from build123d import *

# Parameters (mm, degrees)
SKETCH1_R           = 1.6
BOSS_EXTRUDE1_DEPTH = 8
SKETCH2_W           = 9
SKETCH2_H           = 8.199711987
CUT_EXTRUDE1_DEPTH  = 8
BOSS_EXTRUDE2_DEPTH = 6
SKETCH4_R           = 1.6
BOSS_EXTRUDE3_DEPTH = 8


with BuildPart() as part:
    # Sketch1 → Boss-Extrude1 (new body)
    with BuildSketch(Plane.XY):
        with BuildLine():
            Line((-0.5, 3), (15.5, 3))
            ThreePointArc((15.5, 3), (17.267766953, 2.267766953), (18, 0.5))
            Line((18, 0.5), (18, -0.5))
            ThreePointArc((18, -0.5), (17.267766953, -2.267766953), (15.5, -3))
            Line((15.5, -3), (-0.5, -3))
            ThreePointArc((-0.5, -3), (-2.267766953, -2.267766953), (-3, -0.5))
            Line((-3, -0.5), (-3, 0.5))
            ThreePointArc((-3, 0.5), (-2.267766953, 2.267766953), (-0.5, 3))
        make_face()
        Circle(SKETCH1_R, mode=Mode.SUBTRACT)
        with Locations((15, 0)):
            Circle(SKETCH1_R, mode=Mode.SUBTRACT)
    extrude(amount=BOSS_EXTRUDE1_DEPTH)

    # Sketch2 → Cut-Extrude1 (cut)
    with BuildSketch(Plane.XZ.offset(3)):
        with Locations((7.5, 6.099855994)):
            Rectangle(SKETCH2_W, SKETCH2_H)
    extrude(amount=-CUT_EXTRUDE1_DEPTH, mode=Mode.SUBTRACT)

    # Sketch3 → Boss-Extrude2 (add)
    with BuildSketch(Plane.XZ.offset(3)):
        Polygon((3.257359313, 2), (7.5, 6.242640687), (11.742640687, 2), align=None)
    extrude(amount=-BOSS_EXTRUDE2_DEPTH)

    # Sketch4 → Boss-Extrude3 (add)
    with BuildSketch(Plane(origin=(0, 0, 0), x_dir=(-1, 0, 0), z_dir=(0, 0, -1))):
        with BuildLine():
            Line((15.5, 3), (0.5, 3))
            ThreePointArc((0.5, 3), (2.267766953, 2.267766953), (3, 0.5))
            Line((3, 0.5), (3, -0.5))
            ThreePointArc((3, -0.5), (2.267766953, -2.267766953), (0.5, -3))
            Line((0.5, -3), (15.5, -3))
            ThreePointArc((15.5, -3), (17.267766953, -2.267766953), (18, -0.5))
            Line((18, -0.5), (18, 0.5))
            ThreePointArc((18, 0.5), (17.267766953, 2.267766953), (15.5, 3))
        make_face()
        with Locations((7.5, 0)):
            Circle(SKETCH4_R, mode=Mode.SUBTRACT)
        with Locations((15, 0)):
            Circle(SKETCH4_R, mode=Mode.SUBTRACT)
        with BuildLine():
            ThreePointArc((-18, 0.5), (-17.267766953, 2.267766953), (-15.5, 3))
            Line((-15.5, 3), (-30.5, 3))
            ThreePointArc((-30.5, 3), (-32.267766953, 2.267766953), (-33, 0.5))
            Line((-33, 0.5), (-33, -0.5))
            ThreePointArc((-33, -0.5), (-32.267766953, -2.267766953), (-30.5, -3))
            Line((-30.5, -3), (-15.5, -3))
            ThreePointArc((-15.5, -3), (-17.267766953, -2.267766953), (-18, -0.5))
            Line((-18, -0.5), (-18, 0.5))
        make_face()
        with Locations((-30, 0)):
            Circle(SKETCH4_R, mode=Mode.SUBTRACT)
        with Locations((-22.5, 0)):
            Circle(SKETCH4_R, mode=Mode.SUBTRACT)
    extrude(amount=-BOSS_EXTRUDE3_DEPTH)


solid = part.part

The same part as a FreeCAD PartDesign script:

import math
import FreeCAD as App
import Part
import Sketcher

V = App.Vector

doc = App.newDocument("Part")
body = doc.addObject("PartDesign::Body", "Body")

sketch1 = body.newObject("Sketcher::SketchObject", "Sketch")
sketch1.AttachmentSupport = (doc.getObject("XY_Plane"), [""])
sketch1.MapMode = "FlatFace"
sketch1.addGeometry([
    Part.LineSegment(V(15.5, 3, 0), V(-0.5, 3, 0)),
    Part.ArcOfCircle(Part.Circle(V(-0.5, 0.5, 0), V(0, 0, 1), 2.5), math.radians(90), math.radians(180)),
    Part.LineSegment(V(-3, 0.5, 0), V(-3, -0.5, 0)),
    Part.ArcOfCircle(Part.Circle(V(-0.5, -0.5, 0), V(0, 0, 1), 2.5), math.radians(180), math.radians(270)),
    Part.LineSegment(V(-0.5, -3, 0), V(15.5, -3, 0)),
    Part.ArcOfCircle(Part.Circle(V(15.5, -0.5, 0), V(0, 0, 1), 2.5), math.radians(-90), math.radians(0)),
    Part.LineSegment(V(18, -0.5, 0), V(18, 0.5, 0)),
    Part.ArcOfCircle(Part.Circle(V(15.5, 0.5, 0), V(0, 0, 1), 2.5), math.radians(0), math.radians(90)),
    Part.Circle(V(15, 0, 0), V(0, 0, 1), 1.6),
    Part.Circle(V(0, 0, 0), V(0, 0, 1), 1.6),
], False)
sketch1.addConstraint([
    Sketcher.Constraint("Tangent", 0, 2, 1, 1),
    Sketcher.Constraint("Tangent", 1, 2, 2, 1),
    Sketcher.Constraint("Tangent", 2, 2, 3, 1),
    Sketcher.Constraint("Tangent", 3, 2, 4, 1),
    Sketcher.Constraint("Tangent", 4, 2, 5, 1),
    Sketcher.Constraint("Tangent", 5, 2, 6, 1),
    Sketcher.Constraint("Tangent", 6, 2, 7, 1),
    Sketcher.Constraint("Tangent", 7, 2, 0, 1),
    Sketcher.Constraint("Horizontal", 0),
    Sketcher.Constraint("Vertical", 2),
    Sketcher.Constraint("Horizontal", 4),
    Sketcher.Constraint("Vertical", 6),
    Sketcher.Constraint("Coincident", 9, 3, -1, 1),
    Sketcher.Constraint("Equal", 1, 3),
    Sketcher.Constraint("Equal", 3, 5),
    Sketcher.Constraint("Equal", 5, 7),
    Sketcher.Constraint("Equal", 8, 9),
    Sketcher.Constraint("PointOnObject", 8, 3, -1),
    Sketcher.Constraint("Diameter", 8, 3.2),
    Sketcher.Constraint("Radius", 1, 2.5),
    Sketcher.Constraint("DistanceX", 0, 2, 0, 1, 16.0),
    Sketcher.Constraint("DistanceY", 2, 2, 2, 1, 1.0),
    Sketcher.Constraint("DistanceX", -1, 1, 8, 3, 15.0),
    Sketcher.Constraint("DistanceY", -1, 1, 0, 2, 3.0),
    Sketcher.Constraint("DistanceX", 1, 2, -1, 1, 3.0),
])
pad1 = body.newObject("PartDesign::Pad", "Pad")
pad1.Profile = sketch1
pad1.Length = 8

sketch2 = body.newObject("Sketcher::SketchObject", "Sketch001")
sketch2.AttachmentSupport = (doc.getObject("XZ_Plane"), [""])
sketch2.MapMode = "FlatFace"
sketch2.AttachmentOffset = App.Placement(V(0, 0, 3), App.Rotation())
sketch2.addGeometry([
    Part.LineSegment(V(3, 10, 0), V(3, 2, 0)),
    Part.LineSegment(V(3, 2, 0), V(12, 2, 0)),
    Part.LineSegment(V(12, 2, 0), V(12, 10, 0)),
    Part.LineSegment(V(12, 10, 0), V(3, 10, 0)),
], False)
sketch2.addConstraint([
    Sketcher.Constraint("Coincident", 0, 2, 1, 1),
    Sketcher.Constraint("Coincident", 1, 2, 2, 1),
    Sketcher.Constraint("Coincident", 2, 2, 3, 1),
    Sketcher.Constraint("Coincident", 3, 2, 0, 1),
    Sketcher.Constraint("Vertical", 0),
    Sketcher.Constraint("Horizontal", 1),
    Sketcher.Constraint("Vertical", 2),
    Sketcher.Constraint("Horizontal", 3),
    Sketcher.Constraint("DistanceX", 1, 1, 1, 2, 9.0),
    Sketcher.Constraint("DistanceX", -1, 1, 0, 2, 3.0),
    Sketcher.Constraint("DistanceY", -1, 1, 0, 2, 2.0),
    Sketcher.Constraint("DistanceY", 0, 2, 0, 1, 8.199712),
])
pocket1 = body.newObject("PartDesign::Pocket", "Pocket")
pocket1.Profile = sketch2
pocket1.Length = 8

sketch3 = body.newObject("Sketcher::SketchObject", "Sketch002")
sketch3.AttachmentSupport = (doc.getObject("XZ_Plane"), [""])
sketch3.MapMode = "FlatFace"
sketch3.AttachmentOffset = App.Placement(V(0, 0, 3), App.Rotation())
sketch3.addGeometry([
    Part.LineSegment(V(8, 6, 0), V(3, 2, 0)),
    Part.LineSegment(V(3, 2, 0), V(12, 2, 0)),
    Part.LineSegment(V(12, 2, 0), V(8, 6, 0)),
], False)
sketch3.addConstraint([
    Sketcher.Constraint("Coincident", 0, 2, 1, 1),
    Sketcher.Constraint("Coincident", 1, 2, 2, 1),
    Sketcher.Constraint("Coincident", 2, 2, 0, 1),
    Sketcher.Constraint("Horizontal", 1),
    Sketcher.Constraint("Perpendicular", 0, 2),
    Sketcher.Constraint("Equal", 0, 2),
    Sketcher.Constraint("Distance", 0, 6.0),
    Sketcher.Constraint("DistanceY", -1, 1, 0, 2, 2.0),
    Sketcher.Constraint("DistanceX", -1, 1, 2, 2, 7.5),
])
pad2 = body.newObject("PartDesign::Pad", "Pad001")
pad2.Profile = sketch3
pad2.Length = 6
pad2.Reversed = True

sketch4 = body.newObject("Sketcher::SketchObject", "Sketch003")
sketch4.AttachmentSupport = (doc.getObject("XY_Plane"), [""])
sketch4.MapMode = "FlatFace"
sketch4.addGeometry([
    Part.LineSegment(V(-15.5, 3, 0), V(-0.5, 3, 0)),
    Part.ArcOfCircle(Part.Circle(V(-0.5, 0.5, 0), V(0, 0, 1), 2.5), math.radians(90), math.radians(180)),
    Part.LineSegment(V(-3, 0.5, 0), V(-3, -0.5, 0)),
    Part.ArcOfCircle(Part.Circle(V(-0.5, -0.5, 0), V(0, 0, 1), 2.5), math.radians(180), math.radians(270)),
    Part.LineSegment(V(-0.5, -3, 0), V(-15.5, -3, 0)),
    Part.ArcOfCircle(Part.Circle(V(-15.5, -0.5, 0), V(0, 0, 1), 2.5), math.radians(180), math.radians(270)),
    Part.LineSegment(V(-18, -0.5, 0), V(-18, 0.5, 0)),
    Part.ArcOfCircle(Part.Circle(V(-15.5, 0.5, 0), V(0, 0, 1), 2.5), math.radians(90), math.radians(180)),
    Part.Circle(V(-7.5, 0, 0), V(0, 0, 1), 1.6),
    Part.Circle(V(-15, 0, 0), V(0, 0, 1), 1.6),
    Part.ArcOfCircle(Part.Circle(V(15.5, 0.5, 0), V(0, 0, 1), 2.5), math.radians(0), math.radians(90)),
    Part.LineSegment(V(15.5, 3, 0), V(30.5, 3, 0)),
    Part.ArcOfCircle(Part.Circle(V(30.5, 0.5, 0), V(0, 0, 1), 2.5), math.radians(0), math.radians(90)),
    Part.LineSegment(V(33, 0.5, 0), V(33, -0.5, 0)),
    Part.ArcOfCircle(Part.Circle(V(30.5, -0.5, 0), V(0, 0, 1), 2.5), math.radians(-90), math.radians(0)),
    Part.LineSegment(V(30.5, -3, 0), V(15.5, -3, 0)),
    Part.ArcOfCircle(Part.Circle(V(15.5, -0.5, 0), V(0, 0, 1), 2.5), math.radians(-90), math.radians(0)),
    Part.LineSegment(V(18, -0.5, 0), V(18, 0.5, 0)),
    Part.Circle(V(30, 0, 0), V(0, 0, 1), 1.6),
    Part.Circle(V(22.5, 0, 0), V(0, 0, 1), 1.6),
], False)
sketch4.addConstraint([
    Sketcher.Constraint("Tangent", 0, 2, 1, 1),
    Sketcher.Constraint("Tangent", 1, 2, 2, 1),
    Sketcher.Constraint("Tangent", 2, 2, 3, 1),
    Sketcher.Constraint("Tangent", 3, 2, 4, 1),
    Sketcher.Constraint("Tangent", 4, 2, 5, 2),
    Sketcher.Constraint("Tangent", 5, 1, 6, 1),
    Sketcher.Constraint("Tangent", 6, 2, 7, 2),
    Sketcher.Constraint("Tangent", 7, 1, 0, 1),
    Sketcher.Constraint("Tangent", 10, 2, 11, 1),
    Sketcher.Constraint("Tangent", 11, 2, 12, 2),
    Sketcher.Constraint("Tangent", 12, 1, 13, 1),
    Sketcher.Constraint("Tangent", 13, 2, 14, 2),
    Sketcher.Constraint("Tangent", 14, 1, 15, 1),
    Sketcher.Constraint("Tangent", 15, 2, 16, 1),
    Sketcher.Constraint("Tangent", 16, 2, 17, 1),
    Sketcher.Constraint("Tangent", 17, 2, 10, 1),
    Sketcher.Constraint("Horizontal", 0),
    Sketcher.Constraint("Vertical", 2),
    Sketcher.Constraint("Horizontal", 4),
    Sketcher.Constraint("Vertical", 6),
    Sketcher.Constraint("Horizontal", 11),
    Sketcher.Constraint("Vertical", 13),
    Sketcher.Constraint("Horizontal", 15),
    Sketcher.Constraint("Vertical", 17),
    Sketcher.Constraint("Equal", 1, 3),
    Sketcher.Constraint("Equal", 3, 5),
    Sketcher.Constraint("Equal", 5, 7),
    Sketcher.Constraint("Equal", 8, 9),
    Sketcher.Constraint("Equal", 7, 10),
    Sketcher.Constraint("Equal", 10, 12),
    Sketcher.Constraint("Equal", 12, 14),
    Sketcher.Constraint("Equal", 14, 16),
    Sketcher.Constraint("Equal", 9, 18),
    Sketcher.Constraint("Equal", 18, 19),
    Sketcher.Constraint("Symmetric", 5, 3, 10, 3, -1, 1),
    Sketcher.Constraint("PointOnObject", 8, 3, -1),
    Sketcher.Constraint("PointOnObject", 9, 3, -1),
    Sketcher.Constraint("PointOnObject", 18, 3, -1),
    Sketcher.Constraint("PointOnObject", 19, 3, -1),
    Sketcher.Constraint("Horizontal", 7, 3, 10, 3),
    Sketcher.Constraint("Horizontal", 5, 3, 14, 3),
    Sketcher.Constraint("Equal", 4, 11),
    Sketcher.Constraint("Diameter", 8, 3.2),
    Sketcher.Constraint("Radius", 1, 2.5),
    Sketcher.Constraint("DistanceX", 0, 1, 0, 2, 15.0),
    Sketcher.Constraint("DistanceY", 2, 2, 2, 1, 1.0),
    Sketcher.Constraint("DistanceX", 9, 3, -1, 1, 15.0),
    Sketcher.Constraint("DistanceX", -1, 1, 18, 3, 30.0),
    Sketcher.Constraint("DistanceX", 1, 2, -1, 1, 3.0),
    Sketcher.Constraint("DistanceX", 8, 3, 1, 3, 7.0),
    Sketcher.Constraint("DistanceX", 10, 3, 19, 3, 7.0),
])
pad3 = body.newObject("PartDesign::Pad", "Pad002")
pad3.Profile = sketch4
pad3.Length = 8

doc.recompute()
